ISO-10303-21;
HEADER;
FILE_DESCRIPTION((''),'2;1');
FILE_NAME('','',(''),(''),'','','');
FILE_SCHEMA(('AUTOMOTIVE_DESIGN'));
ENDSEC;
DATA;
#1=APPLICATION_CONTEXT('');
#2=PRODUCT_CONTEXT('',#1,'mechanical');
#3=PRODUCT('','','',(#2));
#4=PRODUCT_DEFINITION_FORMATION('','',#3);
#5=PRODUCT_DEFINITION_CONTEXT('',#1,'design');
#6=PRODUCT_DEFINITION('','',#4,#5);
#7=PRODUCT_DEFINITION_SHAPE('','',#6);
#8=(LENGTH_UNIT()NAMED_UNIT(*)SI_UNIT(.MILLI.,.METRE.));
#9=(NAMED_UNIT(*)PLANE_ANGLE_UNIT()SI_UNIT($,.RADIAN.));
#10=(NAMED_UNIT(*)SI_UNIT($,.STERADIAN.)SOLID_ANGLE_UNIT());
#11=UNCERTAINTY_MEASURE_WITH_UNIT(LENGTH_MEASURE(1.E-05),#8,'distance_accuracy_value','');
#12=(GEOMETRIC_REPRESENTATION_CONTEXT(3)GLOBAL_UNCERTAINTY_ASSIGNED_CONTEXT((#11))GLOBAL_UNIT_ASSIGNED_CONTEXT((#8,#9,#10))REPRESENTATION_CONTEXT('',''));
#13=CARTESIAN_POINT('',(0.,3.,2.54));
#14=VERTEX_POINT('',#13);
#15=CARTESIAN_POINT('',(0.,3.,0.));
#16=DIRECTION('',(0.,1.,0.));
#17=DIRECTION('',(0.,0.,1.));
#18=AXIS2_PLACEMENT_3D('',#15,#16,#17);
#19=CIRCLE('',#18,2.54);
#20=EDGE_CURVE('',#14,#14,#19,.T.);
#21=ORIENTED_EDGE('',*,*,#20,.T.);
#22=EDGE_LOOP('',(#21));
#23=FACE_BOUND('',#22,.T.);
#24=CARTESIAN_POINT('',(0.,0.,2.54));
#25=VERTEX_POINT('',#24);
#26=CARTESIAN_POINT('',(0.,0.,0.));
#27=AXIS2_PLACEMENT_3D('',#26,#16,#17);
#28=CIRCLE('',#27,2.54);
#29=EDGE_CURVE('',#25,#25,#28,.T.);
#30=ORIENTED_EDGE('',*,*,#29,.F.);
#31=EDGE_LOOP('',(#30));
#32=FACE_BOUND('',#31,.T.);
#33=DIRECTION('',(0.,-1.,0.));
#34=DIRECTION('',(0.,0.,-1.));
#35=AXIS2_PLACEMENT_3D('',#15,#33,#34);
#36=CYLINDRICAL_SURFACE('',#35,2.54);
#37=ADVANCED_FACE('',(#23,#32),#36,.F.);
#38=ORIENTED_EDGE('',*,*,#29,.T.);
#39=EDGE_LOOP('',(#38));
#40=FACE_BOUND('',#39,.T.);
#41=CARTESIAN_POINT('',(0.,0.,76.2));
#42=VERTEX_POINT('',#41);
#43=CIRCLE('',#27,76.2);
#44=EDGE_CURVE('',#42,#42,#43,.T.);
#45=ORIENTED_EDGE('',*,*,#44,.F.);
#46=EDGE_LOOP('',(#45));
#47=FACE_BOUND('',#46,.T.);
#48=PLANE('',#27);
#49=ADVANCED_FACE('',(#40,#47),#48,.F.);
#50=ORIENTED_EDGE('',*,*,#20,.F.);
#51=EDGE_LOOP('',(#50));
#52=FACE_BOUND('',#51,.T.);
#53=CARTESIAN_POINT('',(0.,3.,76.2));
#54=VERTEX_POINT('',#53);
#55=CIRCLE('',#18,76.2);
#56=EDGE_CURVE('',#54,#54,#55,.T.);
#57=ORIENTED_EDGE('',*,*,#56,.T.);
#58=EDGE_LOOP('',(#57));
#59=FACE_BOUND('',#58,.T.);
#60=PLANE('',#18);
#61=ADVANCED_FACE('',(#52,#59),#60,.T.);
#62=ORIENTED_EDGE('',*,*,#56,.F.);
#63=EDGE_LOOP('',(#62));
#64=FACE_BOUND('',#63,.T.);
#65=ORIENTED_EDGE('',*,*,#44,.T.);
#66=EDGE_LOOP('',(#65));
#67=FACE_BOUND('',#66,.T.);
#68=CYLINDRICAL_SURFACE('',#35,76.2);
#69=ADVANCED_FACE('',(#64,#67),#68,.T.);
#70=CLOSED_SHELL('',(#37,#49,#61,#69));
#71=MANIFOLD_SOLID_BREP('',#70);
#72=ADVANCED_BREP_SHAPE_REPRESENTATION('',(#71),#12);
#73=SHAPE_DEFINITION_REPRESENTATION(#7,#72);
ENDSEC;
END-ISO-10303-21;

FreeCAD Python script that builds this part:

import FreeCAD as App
import Part
import Sketcher
from FreeCAD import Vector
Q = App.Units.Quantity

doc = App.newDocument("Part")
params = doc.addObject("Spreadsheet::Sheet", "Params")
for row, (alias, value) in enumerate([
    ("sketch1_diameter", "6 in"),
    ("sketch1_diameter2", "0.2 in"),
    ("pad1_length", "3 mm"),
], start=1):
    params.set(f"A{row}", alias)
    params.set(f"B{row}", "=" + value)
    params.setAlias(f"B{row}", alias)

body = doc.addObject("PartDesign::Body", "Body")

# Sketch on XZ plane
sketch1 = body.newObject("Sketcher::SketchObject", "Sketch")
sketch1.AttachmentSupport = (doc.getObject("XZ_Plane"), [""])
sketch1.MapMode = "FlatFace"
sketch1.addGeometry([
    Part.Circle(Vector(0, 0, 0), Vector(0, 0, 1), 76.2),
    Part.Circle(Vector(0, 0, 0), Vector(0, 0, 1), 2.5),
], False)
sketch1.addConstraint([
    Sketcher.Constraint("Coincident", 0, 3, -1, 1),
    Sketcher.Constraint("Coincident", 1, 3, -1, 1),
    Sketcher.Constraint("Diameter", 0, Q("6 in")),
    Sketcher.Constraint("Diameter", 1, Q("0.2 in")),
])
sketch1.setExpression("Constraints[2]", "Params.sketch1_diameter")
sketch1.setExpression("Constraints[3]", "Params.sketch1_diameter2")
pad1 = body.newObject("PartDesign::Pad", "Pad")
pad1.Profile = sketch1
pad1.setExpression("Length", "Params.pad1_length")
pad1.Reversed = True

doc.recompute()
